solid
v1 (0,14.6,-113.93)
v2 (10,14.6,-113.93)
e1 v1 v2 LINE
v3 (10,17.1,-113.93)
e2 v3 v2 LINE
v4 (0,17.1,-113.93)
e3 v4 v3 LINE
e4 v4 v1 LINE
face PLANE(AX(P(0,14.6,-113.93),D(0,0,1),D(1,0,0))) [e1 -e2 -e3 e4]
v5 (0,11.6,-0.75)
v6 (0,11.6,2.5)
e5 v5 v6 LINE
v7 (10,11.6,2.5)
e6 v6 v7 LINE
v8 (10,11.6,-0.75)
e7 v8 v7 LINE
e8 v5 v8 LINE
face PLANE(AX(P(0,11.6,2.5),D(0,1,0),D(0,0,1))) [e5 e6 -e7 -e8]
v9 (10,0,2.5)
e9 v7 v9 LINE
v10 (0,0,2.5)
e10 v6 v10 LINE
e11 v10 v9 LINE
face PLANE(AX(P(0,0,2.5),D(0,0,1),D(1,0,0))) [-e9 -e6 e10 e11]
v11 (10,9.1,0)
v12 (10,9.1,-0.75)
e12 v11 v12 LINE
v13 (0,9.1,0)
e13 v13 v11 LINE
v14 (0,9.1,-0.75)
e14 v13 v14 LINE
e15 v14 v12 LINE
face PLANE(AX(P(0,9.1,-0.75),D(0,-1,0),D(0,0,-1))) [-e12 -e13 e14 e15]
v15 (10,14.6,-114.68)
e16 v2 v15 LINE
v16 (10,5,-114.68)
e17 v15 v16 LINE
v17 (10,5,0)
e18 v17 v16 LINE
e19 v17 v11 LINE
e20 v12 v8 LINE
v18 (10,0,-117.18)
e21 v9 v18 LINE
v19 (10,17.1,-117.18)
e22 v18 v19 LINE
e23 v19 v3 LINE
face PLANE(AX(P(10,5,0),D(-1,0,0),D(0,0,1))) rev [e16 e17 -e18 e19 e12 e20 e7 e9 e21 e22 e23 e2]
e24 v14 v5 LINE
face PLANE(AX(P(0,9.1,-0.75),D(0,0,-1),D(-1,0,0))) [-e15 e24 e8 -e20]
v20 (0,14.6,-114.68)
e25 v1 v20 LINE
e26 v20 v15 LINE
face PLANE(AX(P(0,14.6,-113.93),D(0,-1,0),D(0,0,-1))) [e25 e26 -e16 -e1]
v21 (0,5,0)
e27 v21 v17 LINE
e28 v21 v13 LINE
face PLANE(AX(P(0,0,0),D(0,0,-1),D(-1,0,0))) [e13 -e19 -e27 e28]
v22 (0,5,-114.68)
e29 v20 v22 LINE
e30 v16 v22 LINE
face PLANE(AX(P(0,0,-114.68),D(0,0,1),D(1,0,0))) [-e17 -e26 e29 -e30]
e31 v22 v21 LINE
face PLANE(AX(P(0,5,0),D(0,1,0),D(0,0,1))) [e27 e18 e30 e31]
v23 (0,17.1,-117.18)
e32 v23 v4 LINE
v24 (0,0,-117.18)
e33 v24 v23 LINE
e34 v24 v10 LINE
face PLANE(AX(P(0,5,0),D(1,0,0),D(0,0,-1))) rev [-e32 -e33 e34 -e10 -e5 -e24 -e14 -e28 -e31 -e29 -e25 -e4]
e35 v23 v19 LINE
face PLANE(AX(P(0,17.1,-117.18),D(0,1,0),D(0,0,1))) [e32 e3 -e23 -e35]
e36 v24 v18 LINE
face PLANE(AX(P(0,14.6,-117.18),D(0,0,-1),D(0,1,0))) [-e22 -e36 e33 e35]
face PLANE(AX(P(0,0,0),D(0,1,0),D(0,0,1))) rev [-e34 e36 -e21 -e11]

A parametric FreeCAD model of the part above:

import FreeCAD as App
import Part
import Sketcher

V = App.Vector
Q = App.Units.Quantity


def add_polygon(sketch, points):
    """Adds a closed chain of lines whose ends are joined by coincident constraints."""
    first, n = sketch.GeometryCount, len(points)
    for a, b in zip(points, points[1:] + points[:1]):
        sketch.addGeometry(Part.LineSegment(App.Vector(*a, 0), App.Vector(*b, 0)), False)
    for i in range(n):
        sketch.addConstraint(Sketcher.Constraint("Coincident", first + i, 2, first + (i + 1) % n, 1))

doc = App.newDocument("Part")
body = doc.addObject("PartDesign::Body", "Body")

# Sketch on XZ plane
sketch1 = doc.addObject("Sketcher::SketchObject", "Sketch")
body.addObject(sketch1)
sketch1.AttachmentSupport = (doc.XZ_Plane, [""])
sketch1.MapMode = "FlatFace"
add_polygon(sketch1, [(0, -115), (0, 0), (10, 0), (10, -115)])  # lines 0-3
sketch1.addConstraint([
    Sketcher.Constraint("Vertical", 0),
    Sketcher.Constraint("Horizontal", 1),
    Sketcher.Constraint("Vertical", 2),
    Sketcher.Constraint("Horizontal", 3),
    Sketcher.Constraint("Coincident", 0, 2, -1, 1),
    Sketcher.Constraint("DistanceX", 1, 1, 1, 2, Q("10 mm")),
    Sketcher.Constraint("DistanceY", 0, 1, 0, 2, Q("114.68 mm")),
])
pad1 = doc.addObject("PartDesign::Pad", "Pad")
body.addObject(pad1)
pad1.Profile = sketch1
pad1.Length = 5
pad1.Reversed = True

# Sketch on YZ plane
sketch2 = doc.addObject("Sketcher::SketchObject", "Sketch001")
body.addObject(sketch2)
sketch2.AttachmentSupport = (doc.YZ_Plane, [""])
sketch2.MapMode = "FlatFace"
sketch2.AttachmentOffset = App.Placement(V(0, 0, 10), App.Rotation())
add_polygon(sketch2, [(9.1, 0), (9.1, -0.8), (11.6, -0.8), (11.6, 2.5), (0, 2.5), (0, 0)])  # lines 0-5
add_polygon(sketch2, [(0, -114.7), (0, -117.2), (17.1, -117.2), (17.1, -113.9), (14.6, -113.9), (14.6, -114.7)])  # lines 6-11
sketch2.addConstraint([
    Sketcher.Constraint("Vertical", 0),
    Sketcher.Constraint("Horizontal", 1),
    Sketcher.Constraint("Vertical", 2),
    Sketcher.Constraint("Horizontal", 3),
    Sketcher.Constraint("Vertical", 4),
    Sketcher.Constraint("Horizontal", 5),
    Sketcher.Constraint("Vertical", 6),
    Sketcher.Constraint("Horizontal", 7),
    Sketcher.Constraint("Vertical", 8),
    Sketcher.Constraint("Horizontal", 9),
    Sketcher.Constraint("Vertical", 10),
    Sketcher.Constraint("Horizontal", 11),
    Sketcher.Constraint("Coincident", 4, 2, -1, 1),
    Sketcher.Constraint("PointOnObject", 6, 2, -2),
    Sketcher.Constraint("Equal", 1, 9),
    Sketcher.Constraint("Equal", 9, 4),
    Sketcher.Constraint("Equal", 4, 6),
    Sketcher.Constraint("Equal", 2, 8),
    Sketcher.Constraint("DistanceX", 1, 1, 1, 2, Q("2.5 mm")),
    Sketcher.Constraint("DistanceX", 3, 2, 3, 1, Q("11.6 mm")),
    Sketcher.Constraint("DistanceX", 7, 1, 7, 2, Q("17.1 mm")),
    Sketcher.Constraint("DistanceY", 0, 2, 0, 1, Q("0.75 mm")),
    Sketcher.Constraint("DistanceY", 6, 2, -1, 1, Q("117.18 mm")),
])
pad2 = doc.addObject("PartDesign::Pad", "Pad001")
body.addObject(pad2)
pad2.Profile = sketch2
pad2.Length = 10
pad2.Reversed = True

doc.recompute()
